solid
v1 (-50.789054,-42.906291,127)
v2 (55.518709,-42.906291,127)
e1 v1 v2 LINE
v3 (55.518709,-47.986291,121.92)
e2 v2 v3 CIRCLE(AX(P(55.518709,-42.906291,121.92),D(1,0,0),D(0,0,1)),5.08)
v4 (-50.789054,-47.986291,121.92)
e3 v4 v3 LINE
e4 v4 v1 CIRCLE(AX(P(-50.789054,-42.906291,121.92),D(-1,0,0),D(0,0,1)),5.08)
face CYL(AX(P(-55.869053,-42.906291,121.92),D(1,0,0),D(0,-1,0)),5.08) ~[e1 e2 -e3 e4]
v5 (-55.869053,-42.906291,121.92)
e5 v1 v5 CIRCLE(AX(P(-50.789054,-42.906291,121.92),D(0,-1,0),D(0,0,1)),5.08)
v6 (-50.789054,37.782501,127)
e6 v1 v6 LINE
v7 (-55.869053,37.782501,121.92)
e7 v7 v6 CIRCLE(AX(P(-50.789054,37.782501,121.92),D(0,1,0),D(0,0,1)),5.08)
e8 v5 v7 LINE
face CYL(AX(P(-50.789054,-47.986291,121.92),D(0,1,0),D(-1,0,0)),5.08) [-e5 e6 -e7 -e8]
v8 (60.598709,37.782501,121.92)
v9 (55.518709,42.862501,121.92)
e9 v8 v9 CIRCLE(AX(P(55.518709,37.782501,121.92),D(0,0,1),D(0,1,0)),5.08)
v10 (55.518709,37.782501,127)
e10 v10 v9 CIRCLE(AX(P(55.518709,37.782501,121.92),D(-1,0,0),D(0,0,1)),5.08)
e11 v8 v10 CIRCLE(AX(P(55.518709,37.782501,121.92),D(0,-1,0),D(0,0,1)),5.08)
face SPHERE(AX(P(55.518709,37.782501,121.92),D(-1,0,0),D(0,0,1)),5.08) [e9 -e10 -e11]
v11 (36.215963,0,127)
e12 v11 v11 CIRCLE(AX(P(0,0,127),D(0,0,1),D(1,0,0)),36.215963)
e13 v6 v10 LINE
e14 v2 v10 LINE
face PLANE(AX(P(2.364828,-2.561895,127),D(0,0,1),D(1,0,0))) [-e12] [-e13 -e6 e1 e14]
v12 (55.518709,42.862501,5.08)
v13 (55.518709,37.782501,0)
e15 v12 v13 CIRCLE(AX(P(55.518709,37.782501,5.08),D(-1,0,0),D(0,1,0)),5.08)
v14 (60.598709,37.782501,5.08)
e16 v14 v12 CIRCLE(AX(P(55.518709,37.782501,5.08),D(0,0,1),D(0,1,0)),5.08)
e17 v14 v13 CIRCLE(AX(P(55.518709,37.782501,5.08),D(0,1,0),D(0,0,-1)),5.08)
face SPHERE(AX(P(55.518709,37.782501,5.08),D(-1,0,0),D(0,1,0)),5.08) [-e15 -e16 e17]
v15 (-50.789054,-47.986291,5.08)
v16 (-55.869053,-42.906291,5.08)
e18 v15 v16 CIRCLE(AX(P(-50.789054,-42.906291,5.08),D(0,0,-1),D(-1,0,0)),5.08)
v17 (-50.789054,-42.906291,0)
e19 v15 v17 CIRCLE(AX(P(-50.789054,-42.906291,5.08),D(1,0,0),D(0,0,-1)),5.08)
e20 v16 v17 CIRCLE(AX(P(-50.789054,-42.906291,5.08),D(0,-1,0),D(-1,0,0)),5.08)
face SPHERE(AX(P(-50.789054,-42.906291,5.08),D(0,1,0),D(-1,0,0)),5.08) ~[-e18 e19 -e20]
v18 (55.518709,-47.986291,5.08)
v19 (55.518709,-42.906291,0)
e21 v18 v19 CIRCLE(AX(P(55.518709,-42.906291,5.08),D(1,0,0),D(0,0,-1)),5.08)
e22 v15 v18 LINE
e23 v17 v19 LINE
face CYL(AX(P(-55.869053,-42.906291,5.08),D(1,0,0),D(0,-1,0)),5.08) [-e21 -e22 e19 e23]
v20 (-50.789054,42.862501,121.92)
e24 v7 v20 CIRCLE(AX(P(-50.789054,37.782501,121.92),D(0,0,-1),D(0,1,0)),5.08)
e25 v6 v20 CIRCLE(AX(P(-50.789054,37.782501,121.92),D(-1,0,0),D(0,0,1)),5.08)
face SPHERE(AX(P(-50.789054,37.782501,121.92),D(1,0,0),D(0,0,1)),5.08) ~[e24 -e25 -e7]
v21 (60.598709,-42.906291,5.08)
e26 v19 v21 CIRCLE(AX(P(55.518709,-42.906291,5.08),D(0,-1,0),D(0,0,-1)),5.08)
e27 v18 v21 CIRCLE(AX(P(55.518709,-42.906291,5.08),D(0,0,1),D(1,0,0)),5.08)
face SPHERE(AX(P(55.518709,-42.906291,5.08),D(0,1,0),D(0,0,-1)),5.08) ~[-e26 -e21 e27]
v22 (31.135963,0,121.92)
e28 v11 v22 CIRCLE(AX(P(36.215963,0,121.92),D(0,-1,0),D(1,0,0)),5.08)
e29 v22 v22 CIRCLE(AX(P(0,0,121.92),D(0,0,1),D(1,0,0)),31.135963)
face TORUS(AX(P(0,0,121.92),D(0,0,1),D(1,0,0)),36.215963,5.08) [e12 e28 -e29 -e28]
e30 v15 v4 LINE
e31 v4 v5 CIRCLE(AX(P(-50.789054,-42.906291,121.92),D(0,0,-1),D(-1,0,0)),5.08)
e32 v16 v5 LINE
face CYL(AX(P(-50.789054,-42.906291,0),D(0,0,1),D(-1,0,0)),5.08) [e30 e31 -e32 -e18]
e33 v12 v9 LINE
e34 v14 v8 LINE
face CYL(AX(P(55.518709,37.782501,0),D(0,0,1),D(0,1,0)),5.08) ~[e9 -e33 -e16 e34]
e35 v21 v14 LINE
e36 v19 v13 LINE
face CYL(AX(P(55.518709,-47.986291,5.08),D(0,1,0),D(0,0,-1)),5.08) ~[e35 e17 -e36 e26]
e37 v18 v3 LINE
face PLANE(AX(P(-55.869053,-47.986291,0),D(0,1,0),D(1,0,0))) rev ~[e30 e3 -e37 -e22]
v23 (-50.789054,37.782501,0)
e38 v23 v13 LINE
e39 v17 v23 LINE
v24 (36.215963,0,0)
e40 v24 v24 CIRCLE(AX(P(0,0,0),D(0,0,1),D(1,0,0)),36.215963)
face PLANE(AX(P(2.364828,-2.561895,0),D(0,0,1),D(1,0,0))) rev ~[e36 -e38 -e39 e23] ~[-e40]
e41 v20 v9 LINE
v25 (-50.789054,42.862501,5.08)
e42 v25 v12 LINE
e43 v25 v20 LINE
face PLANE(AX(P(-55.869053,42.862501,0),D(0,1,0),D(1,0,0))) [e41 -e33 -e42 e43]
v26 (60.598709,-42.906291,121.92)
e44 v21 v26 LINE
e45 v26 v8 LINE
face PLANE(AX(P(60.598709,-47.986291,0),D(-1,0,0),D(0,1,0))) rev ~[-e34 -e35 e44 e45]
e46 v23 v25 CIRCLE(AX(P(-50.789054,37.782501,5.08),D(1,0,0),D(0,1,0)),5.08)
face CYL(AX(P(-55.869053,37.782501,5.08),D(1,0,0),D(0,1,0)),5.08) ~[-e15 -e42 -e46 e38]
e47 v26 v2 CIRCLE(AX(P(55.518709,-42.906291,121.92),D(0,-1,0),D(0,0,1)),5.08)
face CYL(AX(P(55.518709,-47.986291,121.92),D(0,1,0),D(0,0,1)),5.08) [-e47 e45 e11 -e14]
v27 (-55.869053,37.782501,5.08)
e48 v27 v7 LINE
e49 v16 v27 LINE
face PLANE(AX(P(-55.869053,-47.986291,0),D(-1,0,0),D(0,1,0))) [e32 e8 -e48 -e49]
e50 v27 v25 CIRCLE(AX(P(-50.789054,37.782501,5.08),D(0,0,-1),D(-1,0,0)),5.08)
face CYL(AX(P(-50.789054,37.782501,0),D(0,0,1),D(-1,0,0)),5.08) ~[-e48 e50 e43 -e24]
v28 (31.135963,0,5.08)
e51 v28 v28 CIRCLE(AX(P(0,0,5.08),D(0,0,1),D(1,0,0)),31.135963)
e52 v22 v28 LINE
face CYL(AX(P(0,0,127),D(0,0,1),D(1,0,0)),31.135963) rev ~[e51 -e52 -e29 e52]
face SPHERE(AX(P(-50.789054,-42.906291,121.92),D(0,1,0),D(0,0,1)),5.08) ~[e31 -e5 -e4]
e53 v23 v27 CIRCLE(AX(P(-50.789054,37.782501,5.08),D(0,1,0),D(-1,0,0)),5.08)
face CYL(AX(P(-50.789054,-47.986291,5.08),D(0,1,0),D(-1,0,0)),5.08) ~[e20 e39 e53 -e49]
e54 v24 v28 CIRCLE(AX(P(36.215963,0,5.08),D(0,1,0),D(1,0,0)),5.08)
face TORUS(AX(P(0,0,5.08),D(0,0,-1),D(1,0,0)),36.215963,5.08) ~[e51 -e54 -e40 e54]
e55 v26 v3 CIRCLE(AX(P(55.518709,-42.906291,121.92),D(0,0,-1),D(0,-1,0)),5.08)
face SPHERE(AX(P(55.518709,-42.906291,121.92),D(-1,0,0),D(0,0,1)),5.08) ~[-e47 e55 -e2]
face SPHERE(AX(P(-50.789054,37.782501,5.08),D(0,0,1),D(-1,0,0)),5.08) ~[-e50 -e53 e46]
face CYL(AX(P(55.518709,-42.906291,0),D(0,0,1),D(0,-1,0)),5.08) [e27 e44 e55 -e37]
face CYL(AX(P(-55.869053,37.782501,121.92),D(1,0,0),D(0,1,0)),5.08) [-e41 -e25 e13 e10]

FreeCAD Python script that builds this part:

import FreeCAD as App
import Part
import Sketcher
Q = App.Units.Quantity


def add_polygon(sketch, points):
    """Adds a closed chain of lines whose ends are joined by coincident constraints."""
    first, n = sketch.GeometryCount, len(points)
    for a, b in zip(points, points[1:] + points[:1]):
        sketch.addGeometry(Part.LineSegment(App.Vector(*a, 0), App.Vector(*b, 0)), False)
    for i in range(n):
        sketch.addConstraint(Sketcher.Constraint("Coincident", first + i, 2, first + (i + 1) % n, 1))

doc = App.newDocument("Part")
body = doc.addObject("PartDesign::Body", "Body")

# Sketch on XY plane
sketch1 = doc.addObject("Sketcher::SketchObject", "Sketch")
body.addObject(sketch1)
sketch1.AttachmentSupport = (doc.XY_Plane, [""])
sketch1.MapMode = "FlatFace"
add_polygon(sketch1, [(-56, 43), (-56, -48), (61, -48), (61, 43)])  # lines 0-3
sketch1.addConstraint([
    Sketcher.Constraint("Vertical", 0),
    Sketcher.Constraint("Horizontal", 1),
    Sketcher.Constraint("Vertical", 2),
    Sketcher.Constraint("Horizontal", 3),
    Sketcher.Constraint("DistanceY", -1, 1, 2, 2, Q("1.6875 in")),
    Sketcher.Constraint("DistanceX", 1, 1, 1, 2, Q("116.467763 mm")),
    Sketcher.Constraint("DistanceY", 0, 2, 0, 1, Q("90.848792 mm")),
    Sketcher.Constraint("DistanceX", -1, 1, 1, 2, Q("60.598709 mm")),
])
pad1 = doc.addObject("PartDesign::Pad", "Pad")
body.addObject(pad1)
pad1.Profile = sketch1
pad1.Length = Q("5 in")

# Sketch on XY plane
sketch2 = doc.addObject("Sketcher::SketchObject", "Sketch001")
body.addObject(sketch2)
sketch2.AttachmentSupport = (doc.XY_Plane, [""])
sketch2.MapMode = "FlatFace"
sketch2.AttachmentOffset = App.Placement(App.Vector(0, 0, 5 * 25.4), App.Rotation())
sketch2.addGeometry(Part.Circle(App.Vector(0, 0, 0), App.Vector(0, 0, 1), 31), False)
sketch2.addConstraint([
    Sketcher.Constraint("Coincident", 0, 3, -1, 1),
    Sketcher.Constraint("Diameter", 0, Q("62.271926 mm")),
])
pocket1 = doc.addObject("PartDesign::Pocket", "Pocket")
body.addObject(pocket1)
pocket1.Profile = sketch2
pocket1.Length = Q("5 in")
doc.recompute()

fillet = doc.addObject("PartDesign::Fillet", "Fillet")
body.addObject(fillet)
fillet.Base = (pocket1, ["Edge1"])
fillet.UseAllEdges = True
fillet.Radius = Q("0.2 in")

doc.recompute()
